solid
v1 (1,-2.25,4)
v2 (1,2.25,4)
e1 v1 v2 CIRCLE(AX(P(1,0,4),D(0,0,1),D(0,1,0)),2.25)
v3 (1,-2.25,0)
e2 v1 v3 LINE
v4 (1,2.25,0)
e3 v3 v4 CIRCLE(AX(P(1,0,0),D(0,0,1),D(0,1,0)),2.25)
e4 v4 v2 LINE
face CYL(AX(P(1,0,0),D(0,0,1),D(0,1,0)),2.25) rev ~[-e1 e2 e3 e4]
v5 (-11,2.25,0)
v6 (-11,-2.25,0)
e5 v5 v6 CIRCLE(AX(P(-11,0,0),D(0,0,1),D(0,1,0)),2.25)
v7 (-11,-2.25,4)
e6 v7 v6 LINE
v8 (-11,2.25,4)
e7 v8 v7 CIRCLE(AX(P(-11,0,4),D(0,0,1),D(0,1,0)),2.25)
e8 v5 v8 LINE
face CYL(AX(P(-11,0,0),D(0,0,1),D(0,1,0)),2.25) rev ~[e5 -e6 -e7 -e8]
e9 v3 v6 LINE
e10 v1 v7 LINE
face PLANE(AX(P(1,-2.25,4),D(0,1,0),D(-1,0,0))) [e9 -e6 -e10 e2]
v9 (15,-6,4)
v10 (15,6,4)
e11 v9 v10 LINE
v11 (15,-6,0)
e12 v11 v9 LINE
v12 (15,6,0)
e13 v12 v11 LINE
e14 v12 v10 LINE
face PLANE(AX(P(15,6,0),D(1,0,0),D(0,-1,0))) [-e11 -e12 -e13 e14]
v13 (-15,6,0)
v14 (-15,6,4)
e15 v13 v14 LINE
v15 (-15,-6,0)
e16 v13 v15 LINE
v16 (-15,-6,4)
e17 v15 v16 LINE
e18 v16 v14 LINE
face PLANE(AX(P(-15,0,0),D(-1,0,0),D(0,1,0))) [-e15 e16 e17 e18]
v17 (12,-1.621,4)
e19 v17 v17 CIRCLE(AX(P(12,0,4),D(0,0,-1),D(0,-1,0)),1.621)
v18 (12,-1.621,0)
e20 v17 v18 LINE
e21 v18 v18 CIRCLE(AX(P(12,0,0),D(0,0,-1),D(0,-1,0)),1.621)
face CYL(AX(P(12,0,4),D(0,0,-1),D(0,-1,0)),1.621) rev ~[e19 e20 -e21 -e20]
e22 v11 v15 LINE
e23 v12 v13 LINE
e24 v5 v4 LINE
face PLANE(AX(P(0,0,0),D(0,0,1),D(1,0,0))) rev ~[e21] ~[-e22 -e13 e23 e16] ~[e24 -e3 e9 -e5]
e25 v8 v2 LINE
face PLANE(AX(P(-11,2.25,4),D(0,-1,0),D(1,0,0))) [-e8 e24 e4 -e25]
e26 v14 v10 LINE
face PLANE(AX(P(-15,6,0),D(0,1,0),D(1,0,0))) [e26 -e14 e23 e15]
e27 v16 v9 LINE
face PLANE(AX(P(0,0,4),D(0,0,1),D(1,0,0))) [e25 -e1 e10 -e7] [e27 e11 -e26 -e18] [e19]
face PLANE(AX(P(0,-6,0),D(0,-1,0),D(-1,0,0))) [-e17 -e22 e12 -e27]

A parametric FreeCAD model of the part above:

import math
import FreeCAD as App
import Part
import Sketcher


def add_polygon(sketch, points):
    """Adds a closed chain of lines whose ends are joined by coincident constraints."""
    first, n = sketch.GeometryCount, len(points)
    for a, b in zip(points, points[1:] + points[:1]):
        sketch.addGeometry(Part.LineSegment(App.Vector(*a, 0), App.Vector(*b, 0)), False)
    for i in range(n):
        sketch.addConstraint(Sketcher.Constraint("Coincident", first + i, 2, first + (i + 1) % n, 1))

doc = App.newDocument("Part")
params = doc.addObject("Spreadsheet::Sheet", "Params")
for row, (alias, value) in enumerate([
    ("sketch1_width", "30 mm"),
    ("sketch1_height", "12 mm"),
    ("pad1_length", "4 mm"),
    ("sketch2_diameter", "4.5 mm"),
    ("hole_diameter", "4.5 mm"),
    ("hole2_diameter", "3.242 mm"),
    ("sketch4_width", "12 mm"),
    ("sketch4_radius", "2.25 mm"),
], start=1):
    params.set(f"A{row}", alias)
    params.set(f"B{row}", "=" + value)
    params.setAlias(f"B{row}", alias)

body = doc.addObject("PartDesign::Body", "Body")

# Sketch on XY plane
sketch1 = doc.addObject("Sketcher::SketchObject", "Sketch")
body.addObject(sketch1)
sketch1.AttachmentSupport = (doc.XY_Plane, [""])
sketch1.MapMode = "FlatFace"
add_polygon(sketch1, [(-15, 6), (-15, -6), (15, -6), (15, 6)])  # lines 0-3
sketch1.addConstraint([
    Sketcher.Constraint("Vertical", 0),
    Sketcher.Constraint("Horizontal", 1),
    Sketcher.Constraint("Vertical", 2),
    Sketcher.Constraint("Horizontal", 3),
    Sketcher.Constraint("Symmetric", 0, 2, 2, 2, -1, 1),
    Sketcher.Constraint("DistanceX", 1, 1, 1, 2, 30.0),
    Sketcher.Constraint("DistanceY", 0, 2, 0, 1, 12.0),
])
sketch1.setExpression("Constraints[9]", "Params.sketch1_width")
sketch1.setExpression("Constraints[10]", "Params.sketch1_height")
pad1 = doc.addObject("PartDesign::Pad", "Pad")
body.addObject(pad1)
pad1.Profile = sketch1
pad1.setExpression("Length", "Params.pad1_length")

# Sketch on XY plane
sketch2 = doc.addObject("Sketcher::SketchObject", "Sketch001")
body.addObject(sketch2)
sketch2.AttachmentSupport = (doc.XY_Plane, [""])
sketch2.MapMode = "FlatFace"
sketch2.addGeometry([
    Part.Circle(App.Vector(1, 0, 0), App.Vector(0, 0, 1), 2.2),
    Part.Circle(App.Vector(-11, 0, 0), App.Vector(0, 0, 1), 2.2),
], False)
sketch2.addConstraint([
    Sketcher.Constraint("Equal", 0, 1),
    Sketcher.Constraint("PointOnObject", 0, 3, -1),
    Sketcher.Constraint("PointOnObject", 1, 3, -1),
    Sketcher.Constraint("Diameter", 0, 4.5),
    Sketcher.Constraint("DistanceX", -1, 1, 0, 3, 1.0),
    Sketcher.Constraint("DistanceX", 1, 3, -1, 1, 11.0),
])
sketch2.setExpression("Constraints[3]", "Params.sketch2_diameter")
doc.recompute()
hole = doc.addObject("PartDesign::Hole", "Hole")
body.addObject(hole)
hole.Profile = sketch2
hole.ThreadType = "None"
hole.setExpression("Diameter", "Params.hole_diameter")
hole.DepthType = "ThroughAll"
hole.Reversed = True

# Sketch on XY plane
sketch3 = doc.addObject("Sketcher::SketchObject", "Sketch002")
body.addObject(sketch3)
sketch3.AttachmentSupport = (doc.XY_Plane, [""])
sketch3.MapMode = "FlatFace"
sketch3.AttachmentOffset = App.Placement(App.Vector(0, 0, 4), App.Rotation())
sketch3.addGeometry(Part.Circle(App.Vector(12, 0, 0), App.Vector(0, 0, 1), 1.6), False)
sketch3.addConstraint([
    Sketcher.Constraint("PointOnObject", 0, 3, -1),
    Sketcher.Constraint("Diameter", 0, 3.242),
    Sketcher.Constraint("DistanceX", -1, 1, 0, 3, 12.0),
])
doc.recompute()
hole2 = doc.addObject("PartDesign::Hole", "Hole001")
body.addObject(hole2)
hole2.Profile = sketch3
hole2.ThreadType = "None"
hole2.setExpression("Diameter", "Params.hole2_diameter")
hole2.DepthType = "ThroughAll"

# Sketch on XY plane
sketch4 = doc.addObject("Sketcher::SketchObject", "Sketch003")
body.addObject(sketch4)
sketch4.AttachmentSupport = (doc.XY_Plane, [""])
sketch4.MapMode = "FlatFace"
sketch4.AttachmentOffset = App.Placement(App.Vector(0, 0, 4), App.Rotation())
sketch4.addGeometry([
    Part.ArcOfCircle(Part.Circle(App.Vector(-11, 0, 0), App.Vector(0, 0, 1), 2.2), math.radians(-90), math.radians(90)),
    Part.LineSegment(App.Vector(-11, -2.2, 0), App.Vector(1, -2.2, 0)),
    Part.ArcOfCircle(Part.Circle(App.Vector(1, 0, 0), App.Vector(0, 0, 1), 2.2), math.radians(90), math.radians(270)),
    Part.LineSegment(App.Vector(1, 2.2, 0), App.Vector(-11, 2.2, 0)),
], False)
sketch4.addConstraint([
    Sketcher.Constraint("Tangent", 0, 1, 1, 1),
    Sketcher.Constraint("Tangent", 1, 2, 2, 2),
    Sketcher.Constraint("Tangent", 2, 1, 3, 1),
    Sketcher.Constraint("Tangent", 3, 2, 0, 2),
    Sketcher.Constraint("Horizontal", 1),
    Sketcher.Constraint("Horizontal", 3),
    Sketcher.Constraint("PointOnObject", 0, 3, -1),
    Sketcher.Constraint("DistanceX", 1, 1, 1, 2, 12.0),
    Sketcher.Constraint("Radius", 0, 2.25),
    Sketcher.Constraint("DistanceX", 0, 3, -1, 1, 11.0),
])
sketch4.setExpression("Constraints[7]", "Params.sketch4_width")
sketch4.setExpression("Constraints[8]", "Params.sketch4_radius")
pocket1 = doc.addObject("PartDesign::Pocket", "Pocket")
body.addObject(pocket1)
pocket1.Profile = sketch4
pocket1.Type = "ThroughAll"

doc.recompute()
